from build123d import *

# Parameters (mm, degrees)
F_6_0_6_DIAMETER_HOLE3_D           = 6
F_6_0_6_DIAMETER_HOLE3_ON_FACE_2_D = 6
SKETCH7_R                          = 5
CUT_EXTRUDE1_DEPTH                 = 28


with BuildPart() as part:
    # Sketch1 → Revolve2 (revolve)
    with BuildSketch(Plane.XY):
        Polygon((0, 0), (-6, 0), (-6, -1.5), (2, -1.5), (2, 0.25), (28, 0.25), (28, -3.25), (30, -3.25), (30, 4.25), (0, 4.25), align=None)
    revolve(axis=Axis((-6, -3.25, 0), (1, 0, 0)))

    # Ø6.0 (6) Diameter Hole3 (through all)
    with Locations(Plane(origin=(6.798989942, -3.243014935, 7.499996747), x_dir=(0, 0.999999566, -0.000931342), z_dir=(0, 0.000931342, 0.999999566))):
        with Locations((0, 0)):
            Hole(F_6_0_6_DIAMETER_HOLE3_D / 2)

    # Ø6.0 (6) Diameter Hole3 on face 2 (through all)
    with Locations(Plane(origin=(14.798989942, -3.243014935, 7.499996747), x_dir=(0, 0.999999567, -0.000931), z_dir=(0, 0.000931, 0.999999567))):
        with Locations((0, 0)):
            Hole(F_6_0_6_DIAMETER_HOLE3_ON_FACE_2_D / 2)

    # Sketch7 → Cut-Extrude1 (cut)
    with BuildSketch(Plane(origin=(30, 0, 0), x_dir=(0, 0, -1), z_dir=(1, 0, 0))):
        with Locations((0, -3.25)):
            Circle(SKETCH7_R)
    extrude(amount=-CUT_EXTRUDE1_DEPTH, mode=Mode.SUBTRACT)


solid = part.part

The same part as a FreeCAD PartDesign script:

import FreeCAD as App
import Part
import Sketcher

doc = App.newDocument("Part")
body = doc.addObject("PartDesign::Body", "Body")

sketch1 = body.newObject("Sketcher::SketchObject", "Sketch")
sketch1.AttachmentSupport = (doc.getObject("XY_Plane"), [""])
sketch1.MapMode = "FlatFace"
sketch1.addGeometry(Part.LineSegment(App.Vector(0, 0, 0), App.Vector(-6, 0, 0)), False)
sketch1.addGeometry(Part.LineSegment(App.Vector(-6, 0, 0), App.Vector(-6, -1.5, 0)), False)
sketch1.addGeometry(Part.LineSegment(App.Vector(-6, -1.5, 0), App.Vector(2, -1.5, 0)), False)
sketch1.addGeometry(Part.LineSegment(App.Vector(2, -1.5, 0), App.Vector(2, 0.25, 0)), False)
sketch1.addGeometry(Part.LineSegment(App.Vector(2, 0.25, 0), App.Vector(28, 0.25, 0)), False)
sketch1.addGeometry(Part.LineSegment(App.Vector(28, 0.25, 0), App.Vector(28, -3.25, 0)), False)
sketch1.addGeometry(Part.LineSegment(App.Vector(28, -3.25, 0), App.Vector(30, -3.25, 0)), False)
sketch1.addGeometry(Part.LineSegment(App.Vector(30, -3.25, 0), App.Vector(30, 4.25, 0)), False)
sketch1.addGeometry(Part.LineSegment(App.Vector(30, 4.25, 0), App.Vector(0, 4.25, 0)), False)
sketch1.addGeometry(Part.LineSegment(App.Vector(0, 4.25, 0), App.Vector(0, 0, 0)), False)
sketch1.addGeometry(Part.LineSegment(App.Vector(-6, -3.25, 0), App.Vector(30, -3.25, 0)), True)
sketch1.addConstraint(Sketcher.Constraint("Coincident", 0, 2, 1, 1))
sketch1.addConstraint(Sketcher.Constraint("Coincident", 1, 2, 2, 1))
sketch1.addConstraint(Sketcher.Constraint("Coincident", 2, 2, 3, 1))
sketch1.addConstraint(Sketcher.Constraint("Coincident", 3, 2, 4, 1))
sketch1.addConstraint(Sketcher.Constraint("Coincident", 4, 2, 5, 1))
sketch1.addConstraint(Sketcher.Constraint("Coincident", 5, 2, 6, 1))
sketch1.addConstraint(Sketcher.Constraint("Coincident", 6, 2, 7, 1))
sketch1.addConstraint(Sketcher.Constraint("Coincident", 7, 2, 8, 1))
sketch1.addConstraint(Sketcher.Constraint("Coincident", 8, 2, 9, 1))
sketch1.addConstraint(Sketcher.Constraint("Coincident", 9, 2, 0, 1))
sketch1.addConstraint(Sketcher.Constraint("Horizontal", 0))
sketch1.addConstraint(Sketcher.Constraint("Vertical", 1))
sketch1.addConstraint(Sketcher.Constraint("Horizontal", 2))
sketch1.addConstraint(Sketcher.Constraint("Vertical", 3))
sketch1.addConstraint(Sketcher.Constraint("Horizontal", 4))
sketch1.addConstraint(Sketcher.Constraint("Vertical", 5))
sketch1.addConstraint(Sketcher.Constraint("Horizontal", 6))
sketch1.addConstraint(Sketcher.Constraint("Vertical", 7))
sketch1.addConstraint(Sketcher.Constraint("Horizontal", 8))
sketch1.addConstraint(Sketcher.Constraint("Vertical", 9))
sketch1.addConstraint(Sketcher.Constraint("Horizontal", 10))
sketch1.addConstraint(Sketcher.Constraint("Coincident", 9, 2, -1, 1))
sketch1.addConstraint(Sketcher.Constraint("Coincident", 10, 2, 6, 2))
sketch1.addConstraint(Sketcher.Constraint("Vertical", 1, 2, 10, 1))
sketch1.addConstraint(Sketcher.Constraint("DistanceX", 0, 2, 0, 1, 6.0))
sketch1.addConstraint(Sketcher.Constraint("DistanceX", 2, 1, 2, 2, 8.0))
sketch1.addConstraint(Sketcher.Constraint("DistanceX", 4, 1, 4, 2, 26.0))
sketch1.addConstraint(Sketcher.Constraint("DistanceX", 6, 1, 6, 2, 2.0))
sketch1.addConstraint(Sketcher.Constraint("DistanceY", 1, 2, 1, 1, 1.5))
sketch1.addConstraint(Sketcher.Constraint("DistanceY", 5, 2, 5, 1, 3.5))
sketch1.addConstraint(Sketcher.Constraint("DistanceY", 7, 1, 7, 2, 7.5))
sketch1.addConstraint(Sketcher.Constraint("DistanceY", 3, 1, 3, 2, 1.75))
revolution = body.newObject("PartDesign::Revolution", "Revolution")
revolution.Profile = sketch1
revolution.ReferenceAxis = (sketch1, ["Axis0"])
revolution.Angle = 360

sketch2 = body.newObject("Sketcher::SketchObject", "Sketch001")
sketch2.Placement = App.Placement(App.Vector(0, 0.006982, 7.49697), App.Rotation(App.Vector(0, 0.999999566, -0.000931342), App.Vector(-0.999999999, 0, 0), App.Vector(0, 0.000931342, 0.999999566), "ZXY"))
sketch2.addGeometry(Part.Circle(App.Vector(-3.249999, -6.79899, 0), App.Vector(0, 0, 1), 3), False)
sketch2.addConstraint(Sketcher.Constraint("Diameter", 0, 6.0))
sketch2.addConstraint(Sketcher.Constraint("DistanceX", 0, 3, -1, 1, 3.249999))
sketch2.addConstraint(Sketcher.Constraint("DistanceY", 0, 3, -1, 1, 6.79899))
doc.recompute()
hole = body.newObject("PartDesign::Hole", "Hole")
hole.Profile = sketch2
hole.ThreadType = "None"
hole.Diameter = 6
hole.DepthType = "ThroughAll"

sketch3 = body.newObject("Sketcher::SketchObject", "Sketch002")
sketch3.Placement = App.Placement(App.Vector(0, 0.00698, 7.496971), App.Rotation(App.Vector(0, 0.999999567, -0.000931), App.Vector(-1.000000001, 0, 0), App.Vector(0, 0.000931, 0.999999567), "ZXY"))
sketch3.addGeometry(Part.Circle(App.Vector(-3.249996, -14.79899, 0), App.Vector(0, 0, 1), 3), False)
sketch3.addConstraint(Sketcher.Constraint("Diameter", 0, 6.0))
sketch3.addConstraint(Sketcher.Constraint("DistanceY", 0, 3, -1, 1, 14.79899))
sketch3.addConstraint(Sketcher.Constraint("DistanceX", 0, 3, -1, 1, 3.249996))
doc.recompute()
hole2 = body.newObject("PartDesign::Hole", "Hole001")
hole2.Profile = sketch3
hole2.ThreadType = "None"
hole2.Diameter = 6
hole2.DepthType = "ThroughAll"

sketch4 = body.newObject("Sketcher::SketchObject", "Sketch003")
sketch4.AttachmentSupport = (doc.getObject("YZ_Plane"), [""])
sketch4.MapMode = "FlatFace"
sketch4.AttachmentOffset = App.Placement(App.Vector(0, 0, 30), App.Rotation())
sketch4.addGeometry(Part.Circle(App.Vector(-3.25, 0, 0), App.Vector(0, 0, 1), 5), False)
sketch4.addConstraint(Sketcher.Constraint("PointOnObject", 0, 3, -1))
sketch4.addConstraint(Sketcher.Constraint("Diameter", 0, 10.0))
sketch4.addConstraint(Sketcher.Constraint("DistanceX", 0, 3, -1, 1, 3.25))
pocket1 = body.newObject("PartDesign::Pocket", "Pocket")
pocket1.Profile = sketch4
pocket1.Length = 28

doc.recompute()
